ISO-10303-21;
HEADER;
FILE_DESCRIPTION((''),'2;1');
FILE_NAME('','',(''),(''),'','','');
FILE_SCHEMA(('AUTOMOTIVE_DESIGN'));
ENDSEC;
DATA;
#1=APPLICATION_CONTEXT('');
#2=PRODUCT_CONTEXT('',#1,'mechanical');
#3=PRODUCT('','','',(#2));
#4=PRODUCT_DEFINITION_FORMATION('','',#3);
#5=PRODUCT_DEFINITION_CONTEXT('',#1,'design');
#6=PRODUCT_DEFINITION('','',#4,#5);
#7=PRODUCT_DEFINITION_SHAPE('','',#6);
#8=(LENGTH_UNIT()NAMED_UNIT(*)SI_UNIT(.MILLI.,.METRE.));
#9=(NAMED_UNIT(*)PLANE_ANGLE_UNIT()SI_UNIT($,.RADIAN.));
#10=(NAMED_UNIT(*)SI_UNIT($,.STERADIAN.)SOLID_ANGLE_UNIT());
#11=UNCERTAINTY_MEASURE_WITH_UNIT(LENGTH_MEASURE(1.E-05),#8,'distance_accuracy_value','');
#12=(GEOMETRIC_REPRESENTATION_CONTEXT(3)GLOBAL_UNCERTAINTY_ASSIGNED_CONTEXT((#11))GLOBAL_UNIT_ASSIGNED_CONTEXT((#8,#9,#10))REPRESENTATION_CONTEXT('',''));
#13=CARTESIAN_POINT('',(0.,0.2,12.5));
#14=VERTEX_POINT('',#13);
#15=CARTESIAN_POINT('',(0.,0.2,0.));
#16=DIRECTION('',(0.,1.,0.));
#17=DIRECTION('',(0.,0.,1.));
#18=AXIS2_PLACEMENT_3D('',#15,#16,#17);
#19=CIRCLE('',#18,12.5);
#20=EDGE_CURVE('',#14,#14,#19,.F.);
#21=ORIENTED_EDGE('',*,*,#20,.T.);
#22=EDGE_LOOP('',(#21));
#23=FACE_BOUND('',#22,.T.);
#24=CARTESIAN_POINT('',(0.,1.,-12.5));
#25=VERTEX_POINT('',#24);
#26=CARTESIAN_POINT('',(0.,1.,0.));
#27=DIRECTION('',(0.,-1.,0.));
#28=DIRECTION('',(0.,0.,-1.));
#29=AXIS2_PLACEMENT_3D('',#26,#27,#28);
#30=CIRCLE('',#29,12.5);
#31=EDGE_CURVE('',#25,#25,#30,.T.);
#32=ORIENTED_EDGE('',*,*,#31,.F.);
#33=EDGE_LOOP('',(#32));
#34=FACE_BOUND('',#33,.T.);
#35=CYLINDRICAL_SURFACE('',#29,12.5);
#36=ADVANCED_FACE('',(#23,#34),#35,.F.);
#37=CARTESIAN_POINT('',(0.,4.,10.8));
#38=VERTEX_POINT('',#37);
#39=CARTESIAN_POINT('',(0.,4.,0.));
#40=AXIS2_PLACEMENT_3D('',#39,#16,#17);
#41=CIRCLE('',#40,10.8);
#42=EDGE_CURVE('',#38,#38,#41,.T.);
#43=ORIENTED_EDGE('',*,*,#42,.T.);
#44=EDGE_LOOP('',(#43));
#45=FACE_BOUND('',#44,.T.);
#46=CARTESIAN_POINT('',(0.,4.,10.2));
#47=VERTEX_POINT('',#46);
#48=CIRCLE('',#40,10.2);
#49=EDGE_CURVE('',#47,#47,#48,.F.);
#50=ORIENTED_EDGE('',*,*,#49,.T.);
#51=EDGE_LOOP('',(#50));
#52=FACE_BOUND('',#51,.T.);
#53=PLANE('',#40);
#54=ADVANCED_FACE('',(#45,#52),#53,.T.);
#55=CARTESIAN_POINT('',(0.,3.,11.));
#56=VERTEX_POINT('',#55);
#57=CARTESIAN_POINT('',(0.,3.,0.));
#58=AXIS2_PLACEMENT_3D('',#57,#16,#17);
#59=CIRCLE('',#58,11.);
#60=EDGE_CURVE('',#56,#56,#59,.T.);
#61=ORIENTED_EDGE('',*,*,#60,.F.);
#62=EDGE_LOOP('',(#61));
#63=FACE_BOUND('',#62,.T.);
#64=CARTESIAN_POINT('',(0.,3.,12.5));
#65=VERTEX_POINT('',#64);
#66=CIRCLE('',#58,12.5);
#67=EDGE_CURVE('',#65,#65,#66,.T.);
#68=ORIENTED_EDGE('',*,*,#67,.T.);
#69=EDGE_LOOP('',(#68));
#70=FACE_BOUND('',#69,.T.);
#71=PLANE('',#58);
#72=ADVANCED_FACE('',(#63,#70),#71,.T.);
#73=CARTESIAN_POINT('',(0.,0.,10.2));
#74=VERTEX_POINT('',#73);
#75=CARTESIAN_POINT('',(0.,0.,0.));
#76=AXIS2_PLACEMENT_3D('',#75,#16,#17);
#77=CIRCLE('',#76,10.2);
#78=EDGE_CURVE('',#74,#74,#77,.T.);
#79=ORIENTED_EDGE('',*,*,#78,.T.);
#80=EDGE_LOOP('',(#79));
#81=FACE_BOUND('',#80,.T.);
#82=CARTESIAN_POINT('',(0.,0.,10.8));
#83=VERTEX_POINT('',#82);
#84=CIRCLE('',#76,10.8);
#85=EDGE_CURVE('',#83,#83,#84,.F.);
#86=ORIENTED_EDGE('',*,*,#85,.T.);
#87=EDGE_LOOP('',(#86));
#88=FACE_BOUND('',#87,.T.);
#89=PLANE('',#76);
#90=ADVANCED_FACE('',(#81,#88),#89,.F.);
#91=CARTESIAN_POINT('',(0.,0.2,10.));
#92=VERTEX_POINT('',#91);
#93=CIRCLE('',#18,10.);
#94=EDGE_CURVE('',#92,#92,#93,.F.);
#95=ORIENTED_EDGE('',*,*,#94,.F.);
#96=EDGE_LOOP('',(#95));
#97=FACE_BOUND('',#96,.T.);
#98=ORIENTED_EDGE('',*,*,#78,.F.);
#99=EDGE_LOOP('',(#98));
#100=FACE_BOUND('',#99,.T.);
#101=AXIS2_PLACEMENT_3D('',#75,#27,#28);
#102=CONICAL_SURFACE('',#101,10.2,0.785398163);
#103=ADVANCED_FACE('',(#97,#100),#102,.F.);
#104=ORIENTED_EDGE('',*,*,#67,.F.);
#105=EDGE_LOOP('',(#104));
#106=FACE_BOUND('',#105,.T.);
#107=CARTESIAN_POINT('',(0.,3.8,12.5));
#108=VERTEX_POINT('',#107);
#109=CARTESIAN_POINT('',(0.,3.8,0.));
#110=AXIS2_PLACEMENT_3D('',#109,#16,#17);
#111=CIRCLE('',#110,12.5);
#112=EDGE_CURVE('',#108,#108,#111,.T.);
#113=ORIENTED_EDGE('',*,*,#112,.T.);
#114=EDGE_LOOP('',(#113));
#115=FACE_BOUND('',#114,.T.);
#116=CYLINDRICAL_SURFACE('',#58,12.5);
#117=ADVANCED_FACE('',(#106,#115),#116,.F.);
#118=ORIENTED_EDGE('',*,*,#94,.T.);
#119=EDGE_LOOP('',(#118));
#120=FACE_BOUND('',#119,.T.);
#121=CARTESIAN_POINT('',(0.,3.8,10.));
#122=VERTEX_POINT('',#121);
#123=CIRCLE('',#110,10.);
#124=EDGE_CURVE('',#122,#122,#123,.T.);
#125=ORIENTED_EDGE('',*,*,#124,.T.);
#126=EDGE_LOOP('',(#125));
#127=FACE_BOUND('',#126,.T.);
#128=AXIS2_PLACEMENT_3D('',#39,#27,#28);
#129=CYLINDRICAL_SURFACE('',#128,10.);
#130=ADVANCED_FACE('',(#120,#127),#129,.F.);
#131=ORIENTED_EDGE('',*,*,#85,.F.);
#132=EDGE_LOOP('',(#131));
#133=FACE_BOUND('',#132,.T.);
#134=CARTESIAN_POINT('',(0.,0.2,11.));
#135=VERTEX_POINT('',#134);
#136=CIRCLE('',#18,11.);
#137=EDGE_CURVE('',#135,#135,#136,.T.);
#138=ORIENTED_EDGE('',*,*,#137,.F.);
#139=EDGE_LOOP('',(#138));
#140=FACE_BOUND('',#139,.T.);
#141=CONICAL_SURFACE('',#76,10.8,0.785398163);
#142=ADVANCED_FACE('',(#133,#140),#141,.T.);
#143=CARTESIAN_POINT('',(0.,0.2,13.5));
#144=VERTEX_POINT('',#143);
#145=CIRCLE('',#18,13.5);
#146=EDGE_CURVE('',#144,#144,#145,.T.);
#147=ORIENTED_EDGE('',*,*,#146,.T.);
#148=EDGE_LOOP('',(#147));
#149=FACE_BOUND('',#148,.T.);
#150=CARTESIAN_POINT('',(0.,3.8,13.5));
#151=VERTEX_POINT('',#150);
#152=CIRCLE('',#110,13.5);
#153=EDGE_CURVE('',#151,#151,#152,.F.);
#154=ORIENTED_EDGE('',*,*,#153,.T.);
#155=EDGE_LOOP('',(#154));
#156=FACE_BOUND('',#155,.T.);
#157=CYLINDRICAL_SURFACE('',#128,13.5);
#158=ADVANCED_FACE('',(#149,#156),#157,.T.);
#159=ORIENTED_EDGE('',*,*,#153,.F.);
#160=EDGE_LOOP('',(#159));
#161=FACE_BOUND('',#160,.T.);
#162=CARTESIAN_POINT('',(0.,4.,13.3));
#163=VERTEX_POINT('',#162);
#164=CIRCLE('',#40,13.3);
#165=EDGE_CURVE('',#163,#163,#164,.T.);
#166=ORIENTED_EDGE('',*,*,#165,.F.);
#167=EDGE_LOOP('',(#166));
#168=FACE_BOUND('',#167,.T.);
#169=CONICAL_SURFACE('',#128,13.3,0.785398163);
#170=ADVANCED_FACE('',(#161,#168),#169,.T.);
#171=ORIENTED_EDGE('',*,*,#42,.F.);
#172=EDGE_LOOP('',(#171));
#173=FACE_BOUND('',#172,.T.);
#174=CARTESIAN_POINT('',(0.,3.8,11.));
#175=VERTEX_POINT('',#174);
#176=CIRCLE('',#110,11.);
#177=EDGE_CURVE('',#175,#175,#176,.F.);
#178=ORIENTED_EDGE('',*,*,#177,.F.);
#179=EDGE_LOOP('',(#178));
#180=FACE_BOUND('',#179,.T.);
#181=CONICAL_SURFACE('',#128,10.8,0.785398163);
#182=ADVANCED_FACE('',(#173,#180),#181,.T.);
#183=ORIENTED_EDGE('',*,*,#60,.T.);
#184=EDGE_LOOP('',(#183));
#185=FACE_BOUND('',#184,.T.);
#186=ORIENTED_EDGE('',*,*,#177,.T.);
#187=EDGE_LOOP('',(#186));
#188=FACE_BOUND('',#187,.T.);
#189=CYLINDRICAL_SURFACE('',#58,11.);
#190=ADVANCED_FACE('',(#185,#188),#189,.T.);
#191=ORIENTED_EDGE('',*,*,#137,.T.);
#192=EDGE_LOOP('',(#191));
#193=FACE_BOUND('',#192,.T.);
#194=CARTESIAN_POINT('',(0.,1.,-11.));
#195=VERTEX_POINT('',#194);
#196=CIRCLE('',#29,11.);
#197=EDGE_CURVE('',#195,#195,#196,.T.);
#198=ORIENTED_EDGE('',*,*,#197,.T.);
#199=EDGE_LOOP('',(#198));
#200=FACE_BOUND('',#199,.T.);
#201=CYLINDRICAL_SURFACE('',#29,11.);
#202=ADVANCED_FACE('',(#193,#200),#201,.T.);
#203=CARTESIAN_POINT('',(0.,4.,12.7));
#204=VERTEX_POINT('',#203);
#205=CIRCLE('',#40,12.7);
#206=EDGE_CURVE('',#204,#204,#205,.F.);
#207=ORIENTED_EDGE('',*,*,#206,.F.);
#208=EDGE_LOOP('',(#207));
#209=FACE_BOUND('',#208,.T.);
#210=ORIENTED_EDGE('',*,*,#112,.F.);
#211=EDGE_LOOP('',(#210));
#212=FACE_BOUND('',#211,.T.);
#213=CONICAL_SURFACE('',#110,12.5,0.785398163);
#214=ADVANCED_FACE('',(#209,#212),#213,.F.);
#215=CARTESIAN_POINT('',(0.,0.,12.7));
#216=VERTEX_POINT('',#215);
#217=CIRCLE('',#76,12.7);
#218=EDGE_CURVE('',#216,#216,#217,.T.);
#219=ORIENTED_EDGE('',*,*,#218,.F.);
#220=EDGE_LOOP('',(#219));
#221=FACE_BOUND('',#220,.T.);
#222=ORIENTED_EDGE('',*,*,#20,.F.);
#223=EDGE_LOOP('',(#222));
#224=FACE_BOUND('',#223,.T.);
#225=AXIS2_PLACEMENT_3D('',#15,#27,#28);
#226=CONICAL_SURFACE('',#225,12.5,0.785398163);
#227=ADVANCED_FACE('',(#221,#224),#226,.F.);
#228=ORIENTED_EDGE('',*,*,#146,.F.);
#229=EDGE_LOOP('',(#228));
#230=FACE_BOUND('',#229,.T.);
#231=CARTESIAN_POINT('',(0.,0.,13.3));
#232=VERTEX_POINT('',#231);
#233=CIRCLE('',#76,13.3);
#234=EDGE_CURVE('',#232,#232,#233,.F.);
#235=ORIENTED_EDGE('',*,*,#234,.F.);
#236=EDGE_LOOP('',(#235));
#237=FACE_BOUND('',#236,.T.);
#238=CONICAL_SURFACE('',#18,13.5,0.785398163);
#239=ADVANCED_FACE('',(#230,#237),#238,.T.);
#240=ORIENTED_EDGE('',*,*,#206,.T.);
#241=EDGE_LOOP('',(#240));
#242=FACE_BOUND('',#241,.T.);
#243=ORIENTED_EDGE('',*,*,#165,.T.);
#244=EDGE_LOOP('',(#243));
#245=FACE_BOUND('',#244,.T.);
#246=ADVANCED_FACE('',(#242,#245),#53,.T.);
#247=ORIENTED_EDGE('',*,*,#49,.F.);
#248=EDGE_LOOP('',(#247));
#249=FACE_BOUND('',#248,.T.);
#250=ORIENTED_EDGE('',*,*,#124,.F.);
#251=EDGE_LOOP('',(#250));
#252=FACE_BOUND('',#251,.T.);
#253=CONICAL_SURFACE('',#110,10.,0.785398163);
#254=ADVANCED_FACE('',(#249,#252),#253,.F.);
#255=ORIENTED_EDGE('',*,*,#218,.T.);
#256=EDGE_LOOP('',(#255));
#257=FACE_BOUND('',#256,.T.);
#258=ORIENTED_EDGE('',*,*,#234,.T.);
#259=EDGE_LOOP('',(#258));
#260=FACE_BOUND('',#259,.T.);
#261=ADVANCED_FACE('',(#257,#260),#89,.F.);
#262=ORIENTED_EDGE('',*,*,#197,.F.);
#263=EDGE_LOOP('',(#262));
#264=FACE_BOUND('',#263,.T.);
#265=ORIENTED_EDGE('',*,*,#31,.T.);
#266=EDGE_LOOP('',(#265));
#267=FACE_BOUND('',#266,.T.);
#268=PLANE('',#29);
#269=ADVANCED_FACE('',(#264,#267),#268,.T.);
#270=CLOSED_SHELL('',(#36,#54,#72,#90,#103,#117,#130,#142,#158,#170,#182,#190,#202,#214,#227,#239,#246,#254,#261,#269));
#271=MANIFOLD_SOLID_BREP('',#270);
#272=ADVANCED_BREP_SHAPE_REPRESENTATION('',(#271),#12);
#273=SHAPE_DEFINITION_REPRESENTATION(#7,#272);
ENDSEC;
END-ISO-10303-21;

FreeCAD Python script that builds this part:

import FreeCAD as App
import Part
import Sketcher
Q = App.Units.Quantity


def edges_at(feature, points):
    """Names of the edges that pass closest to the given points."""
    edges = feature.Shape.Edges
    near = lambda p: min(range(len(edges)), key=lambda i: edges[i].distToShape(Part.Vertex(*p))[0])
    return sorted({f"Edge{near(p) + 1}" for p in points})

doc = App.newDocument("Part")
body = doc.addObject("PartDesign::Body", "Body")

# Sketch on XZ plane
sketch1 = doc.addObject("Sketcher::SketchObject", "Sketch")
body.addObject(sketch1)
sketch1.AttachmentSupport = (doc.XZ_Plane, [""])
sketch1.MapMode = "FlatFace"
sketch1.addGeometry([
    Part.Circle(App.Vector(0, 0, 0), App.Vector(0, 0, 1), 14),
    Part.Circle(App.Vector(0, 0, 0), App.Vector(0, 0, 1), 10),
], False)
sketch1.addConstraint([
    Sketcher.Constraint("Coincident", 0, 3, -1, 1),
    Sketcher.Constraint("Coincident", 1, 3, -1, 1),
    Sketcher.Constraint("Diameter", 0, Q("27 mm")),
    Sketcher.Constraint("Diameter", 1, Q("20 mm")),
])
pad1 = doc.addObject("PartDesign::Pad", "Pad")
body.addObject(pad1)
pad1.Profile = sketch1
pad1.Length = 4
pad1.Reversed = True

# Sketch on XZ plane
sketch2 = doc.addObject("Sketcher::SketchObject", "Sketch001")
body.addObject(sketch2)
sketch2.AttachmentSupport = (doc.XZ_Plane, [""])
sketch2.MapMode = "FlatFace"
sketch2.AttachmentOffset = App.Placement(App.Vector(0, 0, -4), App.Rotation())
sketch2.addGeometry([
    Part.Circle(App.Vector(0, 0, 0), App.Vector(0, 0, 1), 12),
    Part.Circle(App.Vector(0, 0, 0), App.Vector(0, 0, 1), 11),
], False)
sketch2.addConstraint([
    Sketcher.Constraint("Coincident", 0, 3, -1, 1),
    Sketcher.Constraint("Coincident", 1, 3, -1, 1),
    Sketcher.Constraint("Diameter", 0, Q("25 mm")),
    Sketcher.Constraint("Diameter", 1, Q("22 mm")),
])
pocket1 = doc.addObject("PartDesign::Pocket", "Pocket")
body.addObject(pocket1)
pocket1.Profile = sketch2
pocket1.Length = 1
pocket1.Reversed = True

# Sketch on XZ plane
sketch3 = doc.addObject("Sketcher::SketchObject", "Sketch002")
body.addObject(sketch3)
sketch3.AttachmentSupport = (doc.XZ_Plane, [""])
sketch3.MapMode = "FlatFace"
sketch3.AttachmentOffset = App.Placement(App.Vector(0, 0, -1), App.Rotation())
sketch3.addGeometry([
    Part.Circle(App.Vector(0, 0, 0), App.Vector(0, 0, 1), 12),
    Part.Circle(App.Vector(0, 0, 0), App.Vector(0, 0, 1), 11),
], False)
sketch3.addConstraint([
    Sketcher.Constraint("Coincident", 0, 3, -1, 1),
    Sketcher.Constraint("Coincident", 1, 3, -1, 1),
    Sketcher.Constraint("Diameter", 0, Q("25 mm")),
    Sketcher.Constraint("Diameter", 1, Q("22 mm")),
])
pocket2 = doc.addObject("PartDesign::Pocket", "Pocket001")
body.addObject(pocket2)
pocket2.Profile = sketch3
pocket2.Length = 1
pocket2.Reversed = True
doc.recompute()

chamfer = doc.addObject("PartDesign::Chamfer", "Chamfer")
body.addObject(chamfer)
chamfer.Base = (pocket2, edges_at(pocket2, [
    (0, 4, -12.5),
    (0, 4, -11),
    (0, 0, -13.5),
    (0, 0, -12.5),
    (0, 0, -11),
    (0, 4, -13.5),
    (0, 0, -10),
    (0, 4, -10),
]))
chamfer.Size = 0.2

doc.recompute()
